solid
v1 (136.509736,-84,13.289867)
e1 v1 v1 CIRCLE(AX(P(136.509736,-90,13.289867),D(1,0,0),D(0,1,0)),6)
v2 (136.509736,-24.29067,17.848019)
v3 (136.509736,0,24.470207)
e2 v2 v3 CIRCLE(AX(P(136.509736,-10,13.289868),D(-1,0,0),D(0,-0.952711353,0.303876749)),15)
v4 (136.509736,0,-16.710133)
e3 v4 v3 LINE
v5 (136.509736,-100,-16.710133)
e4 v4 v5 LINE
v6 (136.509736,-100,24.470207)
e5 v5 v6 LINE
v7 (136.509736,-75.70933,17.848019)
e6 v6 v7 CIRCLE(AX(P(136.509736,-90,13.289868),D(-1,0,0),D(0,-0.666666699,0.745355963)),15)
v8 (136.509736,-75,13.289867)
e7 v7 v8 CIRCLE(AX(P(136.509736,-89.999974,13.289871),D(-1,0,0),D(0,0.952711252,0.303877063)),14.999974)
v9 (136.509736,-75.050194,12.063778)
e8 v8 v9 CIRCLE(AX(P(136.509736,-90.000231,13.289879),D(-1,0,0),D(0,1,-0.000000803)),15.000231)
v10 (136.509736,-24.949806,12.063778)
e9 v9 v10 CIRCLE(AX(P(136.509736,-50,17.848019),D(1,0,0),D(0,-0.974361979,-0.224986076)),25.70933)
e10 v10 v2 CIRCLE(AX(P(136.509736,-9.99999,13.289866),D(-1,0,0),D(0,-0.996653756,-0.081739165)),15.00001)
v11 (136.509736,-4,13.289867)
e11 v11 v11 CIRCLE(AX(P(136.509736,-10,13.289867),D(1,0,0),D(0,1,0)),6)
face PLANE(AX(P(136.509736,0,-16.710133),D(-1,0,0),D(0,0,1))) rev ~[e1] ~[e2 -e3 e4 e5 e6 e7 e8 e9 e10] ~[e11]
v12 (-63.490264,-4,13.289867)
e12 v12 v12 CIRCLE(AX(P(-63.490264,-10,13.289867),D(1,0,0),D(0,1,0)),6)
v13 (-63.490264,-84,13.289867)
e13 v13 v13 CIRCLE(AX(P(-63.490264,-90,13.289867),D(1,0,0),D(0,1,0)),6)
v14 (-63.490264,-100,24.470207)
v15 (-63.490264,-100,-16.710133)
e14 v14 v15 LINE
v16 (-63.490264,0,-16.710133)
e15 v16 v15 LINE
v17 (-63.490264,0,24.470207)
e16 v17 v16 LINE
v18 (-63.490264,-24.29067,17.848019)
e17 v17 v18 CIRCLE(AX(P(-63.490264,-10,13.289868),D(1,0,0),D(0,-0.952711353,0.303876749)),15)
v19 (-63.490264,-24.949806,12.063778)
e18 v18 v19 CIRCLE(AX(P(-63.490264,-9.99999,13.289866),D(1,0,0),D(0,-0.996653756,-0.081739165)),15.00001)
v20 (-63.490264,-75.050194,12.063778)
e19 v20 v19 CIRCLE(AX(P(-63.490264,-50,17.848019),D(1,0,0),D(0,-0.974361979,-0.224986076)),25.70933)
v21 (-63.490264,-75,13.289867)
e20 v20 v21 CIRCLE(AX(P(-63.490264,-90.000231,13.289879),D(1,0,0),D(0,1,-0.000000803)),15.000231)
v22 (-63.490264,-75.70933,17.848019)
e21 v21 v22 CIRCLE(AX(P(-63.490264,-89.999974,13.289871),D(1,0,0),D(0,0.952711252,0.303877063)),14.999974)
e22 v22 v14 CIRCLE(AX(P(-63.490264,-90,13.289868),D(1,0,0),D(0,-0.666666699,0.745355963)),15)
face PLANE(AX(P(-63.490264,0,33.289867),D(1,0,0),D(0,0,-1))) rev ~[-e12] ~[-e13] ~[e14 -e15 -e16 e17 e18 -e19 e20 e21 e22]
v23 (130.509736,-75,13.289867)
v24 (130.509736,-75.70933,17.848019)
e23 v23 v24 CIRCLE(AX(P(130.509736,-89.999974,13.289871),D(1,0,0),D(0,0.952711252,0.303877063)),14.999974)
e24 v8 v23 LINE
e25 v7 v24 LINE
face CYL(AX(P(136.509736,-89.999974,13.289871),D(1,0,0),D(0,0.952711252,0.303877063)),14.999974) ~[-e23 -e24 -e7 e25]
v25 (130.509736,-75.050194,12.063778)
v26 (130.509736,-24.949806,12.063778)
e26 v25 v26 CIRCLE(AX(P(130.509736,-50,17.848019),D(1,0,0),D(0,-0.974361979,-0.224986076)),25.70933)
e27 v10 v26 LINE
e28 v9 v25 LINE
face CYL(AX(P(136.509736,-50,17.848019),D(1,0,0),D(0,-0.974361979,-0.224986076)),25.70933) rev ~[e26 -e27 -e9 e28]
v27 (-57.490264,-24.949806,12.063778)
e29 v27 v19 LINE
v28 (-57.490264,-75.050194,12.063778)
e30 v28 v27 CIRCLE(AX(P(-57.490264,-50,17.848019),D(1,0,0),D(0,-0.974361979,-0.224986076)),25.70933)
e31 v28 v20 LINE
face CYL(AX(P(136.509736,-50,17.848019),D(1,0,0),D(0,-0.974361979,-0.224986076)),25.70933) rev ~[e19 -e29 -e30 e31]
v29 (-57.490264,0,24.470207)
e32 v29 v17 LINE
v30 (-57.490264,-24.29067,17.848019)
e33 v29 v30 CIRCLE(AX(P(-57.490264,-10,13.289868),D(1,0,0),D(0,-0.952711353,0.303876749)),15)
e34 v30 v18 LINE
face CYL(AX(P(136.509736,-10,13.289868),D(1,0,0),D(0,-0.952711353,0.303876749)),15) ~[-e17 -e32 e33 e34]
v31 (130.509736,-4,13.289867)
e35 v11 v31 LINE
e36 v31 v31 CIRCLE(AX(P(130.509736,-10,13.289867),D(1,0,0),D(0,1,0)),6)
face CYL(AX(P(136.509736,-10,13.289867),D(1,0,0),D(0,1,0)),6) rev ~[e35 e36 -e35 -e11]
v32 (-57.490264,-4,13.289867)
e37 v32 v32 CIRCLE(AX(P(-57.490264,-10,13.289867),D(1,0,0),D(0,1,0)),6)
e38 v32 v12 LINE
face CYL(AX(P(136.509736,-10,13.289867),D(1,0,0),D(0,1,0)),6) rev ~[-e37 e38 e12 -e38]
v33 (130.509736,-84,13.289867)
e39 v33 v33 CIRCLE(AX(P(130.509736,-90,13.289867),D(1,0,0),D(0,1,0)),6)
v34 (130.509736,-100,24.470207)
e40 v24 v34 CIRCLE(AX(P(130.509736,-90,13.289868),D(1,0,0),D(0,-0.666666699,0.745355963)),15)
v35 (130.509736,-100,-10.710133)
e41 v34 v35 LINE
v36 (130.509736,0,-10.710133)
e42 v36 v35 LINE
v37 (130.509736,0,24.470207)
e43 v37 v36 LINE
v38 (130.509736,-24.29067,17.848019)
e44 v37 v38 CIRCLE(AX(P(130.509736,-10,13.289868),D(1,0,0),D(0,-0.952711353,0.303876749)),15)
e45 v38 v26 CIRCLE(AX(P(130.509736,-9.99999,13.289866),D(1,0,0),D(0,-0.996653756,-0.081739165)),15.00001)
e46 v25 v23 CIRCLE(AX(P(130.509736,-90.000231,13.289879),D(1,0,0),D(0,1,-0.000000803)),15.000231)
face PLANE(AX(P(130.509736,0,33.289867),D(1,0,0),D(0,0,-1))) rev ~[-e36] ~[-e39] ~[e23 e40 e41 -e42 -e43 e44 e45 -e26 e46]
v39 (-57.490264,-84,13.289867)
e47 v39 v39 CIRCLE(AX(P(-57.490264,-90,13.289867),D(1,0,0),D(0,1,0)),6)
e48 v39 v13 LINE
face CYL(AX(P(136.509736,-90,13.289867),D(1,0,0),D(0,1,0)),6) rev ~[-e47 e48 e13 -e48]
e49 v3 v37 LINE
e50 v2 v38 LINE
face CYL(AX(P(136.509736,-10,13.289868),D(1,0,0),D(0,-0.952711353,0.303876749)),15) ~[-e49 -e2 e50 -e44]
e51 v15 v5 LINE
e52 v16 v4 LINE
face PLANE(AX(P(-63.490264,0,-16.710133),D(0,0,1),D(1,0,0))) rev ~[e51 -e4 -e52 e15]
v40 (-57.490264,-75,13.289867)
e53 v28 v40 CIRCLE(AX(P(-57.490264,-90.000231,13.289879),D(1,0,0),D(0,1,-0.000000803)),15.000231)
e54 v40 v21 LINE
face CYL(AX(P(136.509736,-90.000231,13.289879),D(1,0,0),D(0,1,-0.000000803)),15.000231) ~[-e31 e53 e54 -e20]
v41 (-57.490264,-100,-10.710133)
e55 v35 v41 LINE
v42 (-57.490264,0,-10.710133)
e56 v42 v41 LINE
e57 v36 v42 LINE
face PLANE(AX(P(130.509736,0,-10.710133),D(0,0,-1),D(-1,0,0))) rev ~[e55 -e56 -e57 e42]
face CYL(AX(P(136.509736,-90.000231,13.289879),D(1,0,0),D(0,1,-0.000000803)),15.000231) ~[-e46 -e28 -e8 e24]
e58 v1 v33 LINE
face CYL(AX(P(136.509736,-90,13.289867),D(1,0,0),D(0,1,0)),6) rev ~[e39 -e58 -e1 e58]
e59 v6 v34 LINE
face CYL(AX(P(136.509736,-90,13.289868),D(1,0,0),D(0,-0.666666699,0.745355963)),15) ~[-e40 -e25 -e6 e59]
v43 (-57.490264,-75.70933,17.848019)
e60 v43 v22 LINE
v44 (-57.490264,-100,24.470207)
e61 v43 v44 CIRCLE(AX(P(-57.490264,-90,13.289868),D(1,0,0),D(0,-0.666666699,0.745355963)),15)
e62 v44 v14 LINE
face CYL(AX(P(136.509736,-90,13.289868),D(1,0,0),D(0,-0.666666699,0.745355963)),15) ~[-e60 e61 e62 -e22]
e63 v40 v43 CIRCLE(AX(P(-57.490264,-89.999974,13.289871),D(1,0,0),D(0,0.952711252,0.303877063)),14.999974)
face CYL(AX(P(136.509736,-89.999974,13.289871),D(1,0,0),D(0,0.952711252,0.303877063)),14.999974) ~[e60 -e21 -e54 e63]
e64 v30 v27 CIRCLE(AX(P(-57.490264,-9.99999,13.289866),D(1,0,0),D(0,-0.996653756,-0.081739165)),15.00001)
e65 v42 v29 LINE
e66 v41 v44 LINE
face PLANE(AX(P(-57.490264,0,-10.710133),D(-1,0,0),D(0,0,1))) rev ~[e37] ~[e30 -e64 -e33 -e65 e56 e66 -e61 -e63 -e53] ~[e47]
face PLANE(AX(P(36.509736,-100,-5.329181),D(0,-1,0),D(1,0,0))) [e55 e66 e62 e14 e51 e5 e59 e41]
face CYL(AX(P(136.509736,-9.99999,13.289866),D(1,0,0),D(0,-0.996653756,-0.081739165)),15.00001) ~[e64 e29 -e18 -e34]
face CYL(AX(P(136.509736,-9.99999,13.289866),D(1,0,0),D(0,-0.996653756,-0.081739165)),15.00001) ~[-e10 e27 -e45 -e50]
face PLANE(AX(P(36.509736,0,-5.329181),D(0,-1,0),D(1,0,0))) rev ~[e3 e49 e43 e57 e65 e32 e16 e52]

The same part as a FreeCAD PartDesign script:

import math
import FreeCAD as App
import Part
import Sketcher


def add_polygon(sketch, points):
    """Adds a closed chain of lines whose ends are joined by coincident constraints."""
    first, n = sketch.GeometryCount, len(points)
    for a, b in zip(points, points[1:] + points[:1]):
        sketch.addGeometry(Part.LineSegment(App.Vector(*a, 0), App.Vector(*b, 0)), False)
    for i in range(n):
        sketch.addConstraint(Sketcher.Constraint("Coincident", first + i, 2, first + (i + 1) % n, 1))

doc = App.newDocument("Part")
body = doc.addObject("PartDesign::Body", "Body")

# Sketch on XZ plane
sketch1 = doc.addObject("Sketcher::SketchObject", "Sketch")
body.addObject(sketch1)
sketch1.AttachmentSupport = (doc.XZ_Plane, [""])
sketch1.MapMode = "FlatFace"
add_polygon(sketch1, [(-57.490264, 33.289867), (-63.490264, 33.289867), (-63.490264, -16.710133), (136.509736, -16.710133), (136.509736, 33.289867), (130.509736, 33.289867), (130.509736, -10.710133), (-57.490264, -10.710133)])  # lines 0-7
sketch1.addConstraint([
    Sketcher.Constraint("Horizontal", 0),
    Sketcher.Constraint("Vertical", 1),
    Sketcher.Constraint("Horizontal", 2),
    Sketcher.Constraint("Vertical", 3),
    Sketcher.Constraint("Horizontal", 4),
    Sketcher.Constraint("Vertical", 5),
    Sketcher.Constraint("Horizontal", 6),
    Sketcher.Constraint("Vertical", 7),
    Sketcher.Constraint("Horizontal", 0, 2, 3, 2),
    Sketcher.Constraint("Equal", 0, 4),
    Sketcher.Constraint("DistanceX", 0, 2, 0, 1, 6.0),
    Sketcher.Constraint("DistanceX", 2, 1, 2, 2, 200.0),
    Sketcher.Constraint("DistanceY", 1, 2, 1, 1, 50.0),
    Sketcher.Constraint("DistanceY", 5, 2, 5, 1, 44.0),
    Sketcher.Constraint("DistanceX", 0, 2, -1, 1, 63.490264),
    Sketcher.Constraint("DistanceY", -1, 1, 0, 2, 33.289867),
])
pad1 = doc.addObject("PartDesign::Pad", "Pad")
body.addObject(pad1)
pad1.Profile = sketch1
pad1.Length = 100

# Sketch on YZ plane
sketch2 = doc.addObject("Sketcher::SketchObject", "Sketch001")
body.addObject(sketch2)
sketch2.AttachmentSupport = (doc.YZ_Plane, [""])
sketch2.MapMode = "FlatFace"
sketch2.AttachmentOffset = App.Placement(App.Vector(0, 0, 136.509736), App.Rotation())
sketch2.addGeometry([
    Part.Circle(App.Vector(-90, 13.289867, 0), App.Vector(0, 0, 1), 6),
    Part.Circle(App.Vector(-10, 13.289867, 0), App.Vector(0, 0, 1), 6),
], False)
sketch2.addConstraint([
    Sketcher.Constraint("Equal", 0, 1),
    Sketcher.Constraint("Horizontal", 0, 3, 1, 3),
    Sketcher.Constraint("Diameter", 0, 12.0),
    Sketcher.Constraint("DistanceX", 0, 3, -1, 1, 90.0),
    Sketcher.Constraint("DistanceX", 1, 3, -1, 1, 10.0),
    Sketcher.Constraint("DistanceY", -1, 1, 0, 3, 13.289867),
])
pocket1 = doc.addObject("PartDesign::Pocket", "Pocket")
body.addObject(pocket1)
pocket1.Profile = sketch2
pocket1.Type = "ThroughAll"

# Sketch on YZ plane
sketch3 = doc.addObject("Sketcher::SketchObject", "Sketch002")
body.addObject(sketch3)
sketch3.AttachmentSupport = (doc.YZ_Plane, [""])
sketch3.MapMode = "FlatFace"
sketch3.AttachmentOffset = App.Placement(App.Vector(0, 0, 136.509736), App.Rotation())
sketch3.addGeometry([
    Part.ArcOfCircle(Part.Circle(App.Vector(-89.999974, 13.289871, 0), App.Vector(0, 0, 1), 14.999974), math.radians(-0.000015), math.radians(17.690618)),  # 0
    Part.ArcOfCircle(Part.Circle(App.Vector(-90.000231, 13.289879, 0), App.Vector(0, 0, 1), 15.000231), math.radians(-4.68852), math.radians(-0.000046)),  # 1
    Part.ArcOfCircle(Part.Circle(App.Vector(-50, 17.848019, 0), App.Vector(0, 0, 1), 25.70933), math.radians(-166.997941), math.radians(-13.002059)),  # 2
    Part.ArcOfCircle(Part.Circle(App.Vector(-9.99999, 13.289866, 0), App.Vector(0, 0, 1), 15.00001), math.radians(162.309407), math.radians(184.68854)),  # 3
    Part.ArcOfCircle(Part.Circle(App.Vector(-10, 13.289868, 0), App.Vector(0, 0, 1), 15), math.radians(48.189683), math.radians(162.309401)),  # 4
    Part.LineSegment(App.Vector(0, 24.470207, 0), App.Vector(0, 33.289867, 0)),  # 5
    Part.LineSegment(App.Vector(0, 33.289867, 0), App.Vector(-100, 33.289867, 0)),  # 6
    Part.LineSegment(App.Vector(-100, 33.289867, 0), App.Vector(-100, 24.470207, 0)),  # 7
    Part.ArcOfCircle(Part.Circle(App.Vector(-90, 13.289868, 0), App.Vector(0, 0, 1), 15), math.radians(17.690599), math.radians(131.810317)),  # 8
], False)
sketch3.addConstraint([
    Sketcher.Constraint("Tangent", 0, 1, 1, 2),
    Sketcher.Constraint("Coincident", 1, 1, 2, 1),
    Sketcher.Constraint("Coincident", 2, 2, 3, 2),
    Sketcher.Constraint("Tangent", 3, 1, 4, 2),
    Sketcher.Constraint("Coincident", 4, 1, 5, 1),
    Sketcher.Constraint("Coincident", 5, 2, 6, 1),
    Sketcher.Constraint("Coincident", 6, 2, 7, 1),
    Sketcher.Constraint("Coincident", 7, 2, 8, 2),
    Sketcher.Constraint("Tangent", 8, 1, 0, 2),
    Sketcher.Constraint("Vertical", 5),
    Sketcher.Constraint("Horizontal", 6),
    Sketcher.Constraint("Vertical", 7),
    Sketcher.Constraint("Equal", 4, 8),
    Sketcher.Constraint("PointOnObject", 4, 1, -2),
    Sketcher.Constraint("Horizontal", 3, 3, 4, 3),
    Sketcher.Constraint("Horizontal", 4, 3, 8, 3),
    Sketcher.Constraint("Horizontal", 8, 3, 0, 1),
    Sketcher.Constraint("Horizontal", 1, 1, 2, 2),
    Sketcher.Constraint("Horizontal", 2, 3, 3, 1),
    Sketcher.Constraint("Horizontal", 4, 1, 7, 2),
    Sketcher.Constraint("Horizontal", 3, 1, 8, 1),
    Sketcher.Constraint("Radius", 4, 15.0),
    Sketcher.Constraint("DistanceX", 6, 2, 6, 1, 100.0),
    Sketcher.Constraint("DistanceX", 2, 3, -1, 1, 50.0),
    Sketcher.Constraint("DistanceX", 4, 3, -1, 1, 10.0),
    Sketcher.Constraint("DistanceY", 3, 3, 5, 2, 20.000001),
    Sketcher.Constraint("Radius", 1, 15.000231),
    Sketcher.Constraint("Radius", 2, 25.70933),
    Sketcher.Constraint("DistanceY", 1, 1, 1, 3, 1.226101),
    Sketcher.Constraint("DistanceY", -1, 1, 0, 3, 13.289871),
])
pocket2 = doc.addObject("PartDesign::Pocket", "Pocket001")
body.addObject(pocket2)
pocket2.Profile = sketch3
pocket2.Type = "ThroughAll"

doc.recompute()
